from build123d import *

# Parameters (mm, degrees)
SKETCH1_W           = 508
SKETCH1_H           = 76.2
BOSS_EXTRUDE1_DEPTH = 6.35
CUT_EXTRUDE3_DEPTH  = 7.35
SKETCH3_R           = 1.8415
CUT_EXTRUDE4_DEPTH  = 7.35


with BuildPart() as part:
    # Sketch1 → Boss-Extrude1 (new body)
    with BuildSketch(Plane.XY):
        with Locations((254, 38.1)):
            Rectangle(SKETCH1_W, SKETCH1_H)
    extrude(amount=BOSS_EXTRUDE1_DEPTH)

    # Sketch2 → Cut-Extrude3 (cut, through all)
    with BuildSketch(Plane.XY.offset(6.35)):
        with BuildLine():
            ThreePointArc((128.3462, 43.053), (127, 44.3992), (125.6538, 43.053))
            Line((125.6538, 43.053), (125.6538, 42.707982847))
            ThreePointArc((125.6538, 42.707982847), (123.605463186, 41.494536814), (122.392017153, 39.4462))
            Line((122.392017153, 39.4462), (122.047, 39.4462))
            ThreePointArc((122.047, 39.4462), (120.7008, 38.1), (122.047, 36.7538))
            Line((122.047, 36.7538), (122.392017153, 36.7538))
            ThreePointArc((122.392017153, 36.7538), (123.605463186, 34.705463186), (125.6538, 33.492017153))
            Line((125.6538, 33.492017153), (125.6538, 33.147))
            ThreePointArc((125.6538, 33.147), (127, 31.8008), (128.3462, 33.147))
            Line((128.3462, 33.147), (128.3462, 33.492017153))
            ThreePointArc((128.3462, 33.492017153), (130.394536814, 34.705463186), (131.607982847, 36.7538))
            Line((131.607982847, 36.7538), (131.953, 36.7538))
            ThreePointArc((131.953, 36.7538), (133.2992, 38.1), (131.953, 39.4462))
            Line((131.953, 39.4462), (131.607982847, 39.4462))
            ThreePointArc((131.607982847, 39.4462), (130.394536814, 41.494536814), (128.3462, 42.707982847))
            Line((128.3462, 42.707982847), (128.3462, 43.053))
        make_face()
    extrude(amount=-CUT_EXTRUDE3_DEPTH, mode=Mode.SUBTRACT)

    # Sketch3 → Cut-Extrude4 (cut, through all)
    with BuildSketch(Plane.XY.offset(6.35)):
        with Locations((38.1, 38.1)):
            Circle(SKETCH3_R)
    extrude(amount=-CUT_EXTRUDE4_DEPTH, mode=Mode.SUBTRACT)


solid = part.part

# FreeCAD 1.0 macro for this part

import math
import FreeCAD as App
import Part
import Sketcher

V = App.Vector
Q = App.Units.Quantity


def add_polygon(sketch, points):
    """Adds a closed chain of lines whose ends are joined by coincident constraints."""
    first, n = sketch.GeometryCount, len(points)
    for a, b in zip(points, points[1:] + points[:1]):
        sketch.addGeometry(Part.LineSegment(App.Vector(*a, 0), App.Vector(*b, 0)), False)
    for i in range(n):
        sketch.addConstraint(Sketcher.Constraint("Coincident", first + i, 2, first + (i + 1) % n, 1))

doc = App.newDocument("Part")
body = doc.addObject("PartDesign::Body", "Body")

sketch1 = body.newObject("Sketcher::SketchObject", "Sketch")
sketch1.AttachmentSupport = (doc.getObject("XY_Plane"), [""])
sketch1.MapMode = "FlatFace"
add_polygon(sketch1, [(0, 76), (0, 0), (508, 0), (508, 76)])
sketch1.addConstraint([
    Sketcher.Constraint("Vertical", 0),
    Sketcher.Constraint("Horizontal", 1),
    Sketcher.Constraint("Vertical", 2),
    Sketcher.Constraint("Horizontal", 3),
    Sketcher.Constraint("Coincident", 0, 2, -1, 1),
    Sketcher.Constraint("DistanceX", 1, 1, 1, 2, Q("20 in")),
    Sketcher.Constraint("DistanceY", 0, 2, 0, 1, Q("3 in")),
])
pad1 = body.newObject("PartDesign::Pad", "Pad")
pad1.Profile = sketch1
pad1.Length = Q("0.25 in")

sketch2 = body.newObject("Sketcher::SketchObject", "Sketch001")
sketch2.AttachmentSupport = (doc.getObject("XY_Plane"), [""])
sketch2.MapMode = "FlatFace"
sketch2.AttachmentOffset = App.Placement(V(0, 0, 0.25 * 25.4), App.Rotation())
sketch2.addGeometry([
    Part.ArcOfCircle(Part.Circle(V(127, 43.05, 0), V(0, 0, 1), 1.35), math.radians(0), math.radians(180)),
    Part.LineSegment(V(125.65, 43.05, 0), V(125.65, 42.71, 0)),
    Part.ArcOfCircle(Part.Circle(V(127, 38.1, 0), V(0, 0, 1), 4.8), math.radians(106), math.radians(164)),
    Part.LineSegment(V(122.39, 39.45, 0), V(122.05, 39.45, 0)),
    Part.ArcOfCircle(Part.Circle(V(122.05, 38.1, 0), V(0, 0, 1), 1.35), math.radians(90), math.radians(270)),
    Part.LineSegment(V(122.05, 36.75, 0), V(122.39, 36.75, 0)),
    Part.ArcOfCircle(Part.Circle(V(127, 38.1, 0), V(0, 0, 1), 4.8), math.radians(-164), math.radians(-106)),
    Part.LineSegment(V(125.65, 33.49, 0), V(125.65, 33.15, 0)),
    Part.ArcOfCircle(Part.Circle(V(127, 33.15, 0), V(0, 0, 1), 1.35), math.radians(180), math.radians(360)),
    Part.LineSegment(V(128.35, 33.15, 0), V(128.35, 33.49, 0)),
    Part.ArcOfCircle(Part.Circle(V(127, 38.1, 0), V(0, 0, 1), 4.8), math.radians(-74), math.radians(-16)),
    Part.LineSegment(V(131.61, 36.75, 0), V(131.95, 36.75, 0)),
    Part.ArcOfCircle(Part.Circle(V(131.95, 38.1, 0), V(0, 0, 1), 1.35), math.radians(-90), math.radians(90)),
    Part.LineSegment(V(131.95, 39.45, 0), V(131.61, 39.45, 0)),
    Part.ArcOfCircle(Part.Circle(V(127, 38.1, 0), V(0, 0, 1), 4.8), math.radians(16), math.radians(74)),
    Part.LineSegment(V(128.35, 42.71, 0), V(128.35, 43.05, 0)),
], False)
sketch2.addConstraint([
    Sketcher.Constraint("Tangent", 0, 2, 1, 1),
    Sketcher.Constraint("Coincident", 1, 2, 2, 1),
    Sketcher.Constraint("Coincident", 2, 2, 3, 1),
    Sketcher.Constraint("Tangent", 3, 2, 4, 1),
    Sketcher.Constraint("Tangent", 4, 2, 5, 1),
    Sketcher.Constraint("Coincident", 5, 2, 6, 1),
    Sketcher.Constraint("Coincident", 6, 2, 7, 1),
    Sketcher.Constraint("Tangent", 7, 2, 8, 1),
    Sketcher.Constraint("Tangent", 8, 2, 9, 1),
    Sketcher.Constraint("Coincident", 9, 2, 10, 1),
    Sketcher.Constraint("Coincident", 10, 2, 11, 1),
    Sketcher.Constraint("Tangent", 11, 2, 12, 1),
    Sketcher.Constraint("Tangent", 12, 2, 13, 1),
    Sketcher.Constraint("Coincident", 13, 2, 14, 1),
    Sketcher.Constraint("Coincident", 14, 2, 15, 1),
    Sketcher.Constraint("Tangent", 15, 2, 0, 1),
    Sketcher.Constraint("Vertical", 1),
    Sketcher.Constraint("Horizontal", 3),
    Sketcher.Constraint("Horizontal", 5),
    Sketcher.Constraint("Vertical", 7),
    Sketcher.Constraint("Vertical", 9),
    Sketcher.Constraint("Horizontal", 11),
    Sketcher.Constraint("Horizontal", 13),
    Sketcher.Constraint("Vertical", 15),
    Sketcher.Constraint("Coincident", 6, 3, 2, 3),
    Sketcher.Constraint("Coincident", 10, 3, 2, 3),
    Sketcher.Constraint("Coincident", 14, 3, 2, 3),
    Sketcher.Constraint("Equal", 0, 4),
    Sketcher.Constraint("Equal", 2, 6),
    Sketcher.Constraint("Equal", 4, 8),
    Sketcher.Constraint("Equal", 6, 10),
    Sketcher.Constraint("Equal", 8, 12),
    Sketcher.Constraint("Equal", 10, 14),
    Sketcher.Constraint("Horizontal", 2, 3, 4, 3),
    Sketcher.Constraint("Horizontal", 10, 3, 12, 3),
    Sketcher.Constraint("Horizontal", 6, 2, 9, 2),
    Sketcher.Constraint("Horizontal", 1, 2, 14, 2),
    Sketcher.Constraint("Equal", 5, 11),
    Sketcher.Constraint("Equal", 13, 1),
    Sketcher.Constraint("Equal", 1, 7),
    Sketcher.Constraint("DistanceX", -1, 1, 0, 3, Q("5 in")),
    Sketcher.Constraint("Radius", 0, Q("0.053 in")),
    Sketcher.Constraint("Radius", 2, Q("0.189 in")),
    Sketcher.Constraint("DistanceY", -1, 1, 2, 3, Q("1.5 in")),
    Sketcher.Constraint("DistanceY", 8, 3, 0, 3, Q("0.39 in")),
])
pocket1 = body.newObject("PartDesign::Pocket", "Pocket")
pocket1.Profile = sketch2
pocket1.Type = "ThroughAll"

sketch3 = body.newObject("Sketcher::SketchObject", "Sketch002")
sketch3.AttachmentSupport = (doc.getObject("XY_Plane"), [""])
sketch3.MapMode = "FlatFace"
sketch3.AttachmentOffset = App.Placement(V(0, 0, 0.25 * 25.4), App.Rotation())
sketch3.addGeometry(Part.Circle(V(38.1, 38.1, 0), V(0, 0, 1), 1.8), False)
sketch3.addConstraint([
    Sketcher.Constraint("Diameter", 0, Q("0.145 in")),
    Sketcher.Constraint("DistanceX", -1, 1, 0, 3, Q("1.5 in")),
    Sketcher.Constraint("DistanceY", -1, 1, 0, 3, Q("1.5 in")),
])
pocket2 = body.newObject("PartDesign::Pocket", "Pocket001")
pocket2.Profile = sketch3
pocket2.Type = "ThroughAll"

doc.recompute()
